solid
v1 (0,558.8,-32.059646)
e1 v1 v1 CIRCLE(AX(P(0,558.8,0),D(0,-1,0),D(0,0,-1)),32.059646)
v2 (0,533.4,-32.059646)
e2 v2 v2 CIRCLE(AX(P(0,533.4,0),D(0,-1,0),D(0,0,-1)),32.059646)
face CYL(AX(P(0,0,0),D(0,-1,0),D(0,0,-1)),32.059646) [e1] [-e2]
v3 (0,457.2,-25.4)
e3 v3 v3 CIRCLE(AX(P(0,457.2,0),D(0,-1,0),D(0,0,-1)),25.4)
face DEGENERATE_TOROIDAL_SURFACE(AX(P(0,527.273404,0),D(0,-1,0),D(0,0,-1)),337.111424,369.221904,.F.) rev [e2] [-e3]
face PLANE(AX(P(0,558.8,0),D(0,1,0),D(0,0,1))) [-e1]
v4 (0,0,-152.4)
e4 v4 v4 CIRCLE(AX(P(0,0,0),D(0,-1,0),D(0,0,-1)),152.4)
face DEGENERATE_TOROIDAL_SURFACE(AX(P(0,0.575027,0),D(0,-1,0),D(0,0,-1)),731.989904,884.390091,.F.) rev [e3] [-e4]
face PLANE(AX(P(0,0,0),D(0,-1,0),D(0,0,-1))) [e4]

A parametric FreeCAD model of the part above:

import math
import FreeCAD as App
import Part
import Sketcher
from FreeCAD import Vector
Q = App.Units.Quantity

doc = App.newDocument("Part")
body = doc.addObject("PartDesign::Body", "Body")

# Sketch on XY plane
sketch1 = body.newObject("Sketcher::SketchObject", "Sketch")
sketch1.AttachmentSupport = (doc.getObject("XY_Plane"), [""])
sketch1.MapMode = "FlatFace"
sketch1.addGeometry([
    Part.LineSegment(Vector(0, 0, 0), Vector(152.4, 0, 0)),  # 0
    Part.ArcOfCircle(Part.Circle(Vector(-731.989904, 0.575027, 0), Vector(0, 0, 1), 884.390091), math.radians(-0.037253), math.radians(31.085475)),  # 1
    Part.ArcOfCircle(Part.Circle(Vector(-337.111424, 527.273404, 0), Vector(0, 0, 1), 369.221904), math.radians(-10.940336), math.radians(0.950768)),  # 2
    Part.LineSegment(Vector(32.059646, 533.4, 0), Vector(32.059646, 558.8, 0)),  # 3
    Part.LineSegment(Vector(32.059646, 558.8, 0), Vector(0, 558.8, 0)),  # 4
    Part.LineSegment(Vector(0, 558.8, 0), Vector(0, 0, 0)),  # 5
], False)
sketch1.addConstraint([
    Sketcher.Constraint("Coincident", 0, 2, 1, 1),
    Sketcher.Constraint("Coincident", 1, 2, 2, 1),
    Sketcher.Constraint("Coincident", 2, 2, 3, 1),
    Sketcher.Constraint("Coincident", 3, 2, 4, 1),
    Sketcher.Constraint("Coincident", 4, 2, 5, 1),
    Sketcher.Constraint("Coincident", 5, 2, 0, 1),
    Sketcher.Constraint("Horizontal", 0),
    Sketcher.Constraint("Vertical", 3),
    Sketcher.Constraint("Horizontal", 4),
    Sketcher.Constraint("Vertical", 5),
    Sketcher.Constraint("Coincident", 5, 2, -1, 1),
    Sketcher.Constraint("DistanceX", 0, 1, 0, 2, Q("6 in")),
    Sketcher.Constraint("DistanceY", 3, 1, 3, 2, Q("1 in")),
    Sketcher.Constraint("DistanceY", 5, 2, 5, 1, Q("22 in")),
    Sketcher.Constraint("Radius", 1, Q("884.390091 mm")),
    Sketcher.Constraint("Radius", 2, Q("369.221904 mm")),
    Sketcher.Constraint("DistanceX", 4, 2, 4, 1, Q("32.059646 mm")),
    Sketcher.Constraint("DistanceX", 1, 3, 2, 3, Q("394.87848 mm")),
    Sketcher.Constraint("DistanceY", -1, 1, 1, 3, Q("0.575027 mm")),
])
revolution = body.newObject("PartDesign::Revolution", "Revolution")
revolution.Profile = sketch1
revolution.ReferenceAxis = (sketch1, ["V_Axis"])
revolution.Angle = 360

doc.recompute()
